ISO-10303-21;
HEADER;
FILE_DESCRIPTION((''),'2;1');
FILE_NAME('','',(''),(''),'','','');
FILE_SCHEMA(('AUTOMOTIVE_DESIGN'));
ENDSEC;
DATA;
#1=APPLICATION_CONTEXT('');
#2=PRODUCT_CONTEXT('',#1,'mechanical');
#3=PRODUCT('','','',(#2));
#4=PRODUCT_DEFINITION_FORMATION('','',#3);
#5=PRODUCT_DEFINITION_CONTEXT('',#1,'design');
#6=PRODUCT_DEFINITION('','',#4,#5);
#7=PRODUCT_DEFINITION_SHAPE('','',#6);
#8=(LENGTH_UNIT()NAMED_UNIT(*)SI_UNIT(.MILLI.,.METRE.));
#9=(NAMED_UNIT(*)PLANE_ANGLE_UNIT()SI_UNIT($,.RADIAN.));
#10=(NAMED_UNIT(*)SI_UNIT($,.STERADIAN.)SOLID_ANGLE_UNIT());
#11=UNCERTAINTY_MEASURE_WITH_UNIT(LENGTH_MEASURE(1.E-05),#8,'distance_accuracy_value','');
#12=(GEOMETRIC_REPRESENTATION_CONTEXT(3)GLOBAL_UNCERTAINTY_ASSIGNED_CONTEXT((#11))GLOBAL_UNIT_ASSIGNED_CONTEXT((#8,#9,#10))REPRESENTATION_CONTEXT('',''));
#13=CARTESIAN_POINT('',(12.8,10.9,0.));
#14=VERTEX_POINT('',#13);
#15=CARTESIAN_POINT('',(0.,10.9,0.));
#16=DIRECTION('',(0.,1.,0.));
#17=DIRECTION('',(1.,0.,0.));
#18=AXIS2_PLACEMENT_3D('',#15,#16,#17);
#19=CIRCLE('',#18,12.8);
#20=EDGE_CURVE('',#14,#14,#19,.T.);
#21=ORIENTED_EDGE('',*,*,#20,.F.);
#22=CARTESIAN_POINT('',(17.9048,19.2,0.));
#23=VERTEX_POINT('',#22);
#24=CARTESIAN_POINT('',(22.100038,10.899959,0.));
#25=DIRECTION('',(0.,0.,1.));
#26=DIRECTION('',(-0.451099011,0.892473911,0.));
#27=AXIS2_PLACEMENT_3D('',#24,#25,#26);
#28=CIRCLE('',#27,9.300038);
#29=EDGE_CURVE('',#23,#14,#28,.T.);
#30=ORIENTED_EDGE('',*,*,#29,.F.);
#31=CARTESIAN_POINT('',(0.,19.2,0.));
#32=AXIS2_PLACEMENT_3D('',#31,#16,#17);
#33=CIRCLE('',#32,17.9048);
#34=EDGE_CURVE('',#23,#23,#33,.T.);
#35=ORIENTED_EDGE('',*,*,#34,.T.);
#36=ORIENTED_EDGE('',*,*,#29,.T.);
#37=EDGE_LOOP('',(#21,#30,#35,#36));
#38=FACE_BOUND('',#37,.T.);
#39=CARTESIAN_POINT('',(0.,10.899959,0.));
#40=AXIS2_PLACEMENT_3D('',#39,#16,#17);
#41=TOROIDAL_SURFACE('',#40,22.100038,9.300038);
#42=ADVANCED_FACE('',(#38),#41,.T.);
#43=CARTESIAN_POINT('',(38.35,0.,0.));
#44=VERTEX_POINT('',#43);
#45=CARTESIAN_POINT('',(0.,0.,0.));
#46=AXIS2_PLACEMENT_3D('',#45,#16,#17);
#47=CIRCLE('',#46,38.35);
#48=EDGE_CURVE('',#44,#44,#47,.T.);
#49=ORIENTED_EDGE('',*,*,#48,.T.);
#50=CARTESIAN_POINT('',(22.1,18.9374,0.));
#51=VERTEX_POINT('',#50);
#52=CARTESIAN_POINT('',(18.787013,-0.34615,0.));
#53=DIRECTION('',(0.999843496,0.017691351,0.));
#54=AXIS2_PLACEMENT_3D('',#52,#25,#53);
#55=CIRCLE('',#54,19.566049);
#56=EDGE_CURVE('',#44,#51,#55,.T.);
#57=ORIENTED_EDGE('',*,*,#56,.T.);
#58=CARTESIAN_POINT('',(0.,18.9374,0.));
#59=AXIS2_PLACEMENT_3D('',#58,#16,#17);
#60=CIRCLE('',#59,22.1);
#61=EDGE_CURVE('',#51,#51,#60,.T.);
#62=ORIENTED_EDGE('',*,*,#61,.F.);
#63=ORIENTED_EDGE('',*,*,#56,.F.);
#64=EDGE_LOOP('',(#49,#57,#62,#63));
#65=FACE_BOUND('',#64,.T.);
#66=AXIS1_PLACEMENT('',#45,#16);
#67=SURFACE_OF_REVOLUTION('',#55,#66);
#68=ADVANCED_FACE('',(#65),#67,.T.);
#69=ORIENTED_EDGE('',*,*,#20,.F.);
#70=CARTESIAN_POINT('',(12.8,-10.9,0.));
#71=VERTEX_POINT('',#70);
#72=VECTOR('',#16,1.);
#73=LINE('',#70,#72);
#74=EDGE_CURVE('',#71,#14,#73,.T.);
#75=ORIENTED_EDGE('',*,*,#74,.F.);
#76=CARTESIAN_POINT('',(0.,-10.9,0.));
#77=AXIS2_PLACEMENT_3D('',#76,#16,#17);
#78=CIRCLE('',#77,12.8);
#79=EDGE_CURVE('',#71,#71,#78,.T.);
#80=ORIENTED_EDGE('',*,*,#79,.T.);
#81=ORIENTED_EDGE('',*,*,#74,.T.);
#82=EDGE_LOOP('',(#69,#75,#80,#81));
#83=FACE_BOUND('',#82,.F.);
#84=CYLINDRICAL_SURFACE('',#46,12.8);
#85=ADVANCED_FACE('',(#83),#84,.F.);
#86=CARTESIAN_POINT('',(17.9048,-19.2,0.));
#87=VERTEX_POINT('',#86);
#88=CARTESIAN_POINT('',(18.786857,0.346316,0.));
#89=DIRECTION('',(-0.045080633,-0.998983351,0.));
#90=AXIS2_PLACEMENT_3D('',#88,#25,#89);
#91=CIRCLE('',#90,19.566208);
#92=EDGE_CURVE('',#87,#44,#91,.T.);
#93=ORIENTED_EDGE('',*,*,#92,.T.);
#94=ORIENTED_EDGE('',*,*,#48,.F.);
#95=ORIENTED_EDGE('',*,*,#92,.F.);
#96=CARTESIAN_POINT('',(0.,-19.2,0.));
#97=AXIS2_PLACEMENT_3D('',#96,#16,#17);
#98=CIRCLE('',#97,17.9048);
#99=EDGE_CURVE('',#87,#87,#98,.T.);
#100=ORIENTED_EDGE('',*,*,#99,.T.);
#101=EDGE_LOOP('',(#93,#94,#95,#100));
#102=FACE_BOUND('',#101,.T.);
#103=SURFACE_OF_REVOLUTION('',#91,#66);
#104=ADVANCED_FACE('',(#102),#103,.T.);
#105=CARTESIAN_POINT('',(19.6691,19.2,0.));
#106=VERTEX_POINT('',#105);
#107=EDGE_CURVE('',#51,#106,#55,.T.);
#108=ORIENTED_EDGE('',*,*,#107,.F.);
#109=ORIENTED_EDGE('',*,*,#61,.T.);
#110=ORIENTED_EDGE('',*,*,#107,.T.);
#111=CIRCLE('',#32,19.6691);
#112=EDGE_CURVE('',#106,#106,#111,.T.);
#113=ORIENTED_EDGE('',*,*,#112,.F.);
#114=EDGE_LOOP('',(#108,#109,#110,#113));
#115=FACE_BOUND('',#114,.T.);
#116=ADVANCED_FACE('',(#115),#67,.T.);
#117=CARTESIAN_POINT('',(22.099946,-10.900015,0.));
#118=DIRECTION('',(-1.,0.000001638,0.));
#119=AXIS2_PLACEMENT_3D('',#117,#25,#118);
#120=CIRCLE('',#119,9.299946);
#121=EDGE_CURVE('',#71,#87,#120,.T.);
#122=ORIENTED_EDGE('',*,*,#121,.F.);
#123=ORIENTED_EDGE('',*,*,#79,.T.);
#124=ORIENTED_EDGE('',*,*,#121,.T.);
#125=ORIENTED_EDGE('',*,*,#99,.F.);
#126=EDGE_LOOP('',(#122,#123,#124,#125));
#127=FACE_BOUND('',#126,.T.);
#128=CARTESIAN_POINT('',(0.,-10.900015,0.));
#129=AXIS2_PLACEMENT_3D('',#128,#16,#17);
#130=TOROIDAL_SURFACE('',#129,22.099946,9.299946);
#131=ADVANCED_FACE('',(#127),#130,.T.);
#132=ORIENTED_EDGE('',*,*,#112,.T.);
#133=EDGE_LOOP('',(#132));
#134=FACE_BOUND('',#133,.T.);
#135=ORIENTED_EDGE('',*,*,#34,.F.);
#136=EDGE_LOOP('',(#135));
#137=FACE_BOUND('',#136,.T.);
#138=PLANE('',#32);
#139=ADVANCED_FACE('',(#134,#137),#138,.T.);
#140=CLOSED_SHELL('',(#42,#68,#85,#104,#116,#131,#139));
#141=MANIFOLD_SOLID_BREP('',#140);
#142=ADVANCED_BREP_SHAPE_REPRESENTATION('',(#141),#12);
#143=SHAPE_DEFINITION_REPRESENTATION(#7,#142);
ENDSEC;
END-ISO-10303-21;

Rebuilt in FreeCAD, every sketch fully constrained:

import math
import FreeCAD as App
import Part
import Sketcher
Q = App.Units.Quantity

doc = App.newDocument("Part")
body = doc.addObject("PartDesign::Body", "Body")

# Sketch on XY plane
sketch1 = body.newObject("Sketcher::SketchObject", "Sketch")
sketch1.AttachmentSupport = (doc.getObject("XY_Plane"), [""])
sketch1.MapMode = "FlatFace"
sketch1.addGeometry([
    Part.LineSegment(App.Vector(12.8, 10.9, 0), App.Vector(12.8, -10.9, 0)),  # 0
    Part.ArcOfCircle(Part.Circle(App.Vector(22.1, -10.9, 0), App.Vector(0, 0, 1), 9.3), math.radians(180), math.radians(243.185877)),  # 1
    Part.ArcOfCircle(Part.Circle(App.Vector(18.7869, 0.3462, 0), App.Vector(0, 0, 1), 19.566094), math.radians(-92.583947), math.radians(-1.013834)),  # 2
    Part.ArcOfCircle(Part.Circle(App.Vector(18.7869, -0.3462, 0), App.Vector(0, 0, 1), 19.566163), math.radians(1.013834), math.radians(87.415761)),  # 3
    Part.LineSegment(App.Vector(19.6691, 19.2, 0), App.Vector(17.9048, 19.2, 0)),  # 4
    Part.ArcOfCircle(Part.Circle(App.Vector(22.1, 10.9, 0), App.Vector(0, 0, 1), 9.299984), math.radians(116.814123), math.radians(180)),  # 5
], False)
sketch1.addConstraint([
    Sketcher.Constraint("Tangent", 0, 2, 1, 1),
    Sketcher.Constraint("Coincident", 1, 2, 2, 1),
    Sketcher.Constraint("Coincident", 2, 2, 3, 1),
    Sketcher.Constraint("Coincident", 3, 2, 4, 1),
    Sketcher.Constraint("Coincident", 4, 2, 5, 1),
    Sketcher.Constraint("Tangent", 5, 2, 0, 1),
    Sketcher.Constraint("Vertical", 0),
    Sketcher.Constraint("Horizontal", 4),
    Sketcher.Constraint("Equal", 2, 3),
    Sketcher.Constraint("Equal", 1, 5),
    Sketcher.Constraint("Symmetric", 2, 3, 3, 3, -1),
    Sketcher.Constraint("Symmetric", 1, 2, 4, 2, -1),
    Sketcher.Constraint("DistanceX", -1, 1, 1, 3, Q("22.1 mm")),
    Sketcher.Constraint("DistanceY", 1, 3, -1, 1, Q("10.9 mm")),
    Sketcher.Constraint("DistanceX", -1, 1, 0, 2, Q("12.8 mm")),
    Sketcher.Constraint("DistanceY", 1, 2, -1, 1, Q("19.2 mm")),
    Sketcher.Constraint("DistanceX", -1, 1, 2, 2, Q("38.35 mm")),
    Sketcher.Constraint("Radius", 2, Q("19.566 mm")),
])
revolution = body.newObject("PartDesign::Revolution", "Revolution")
revolution.Profile = sketch1
revolution.ReferenceAxis = (sketch1, ["V_Axis"])
revolution.Angle = 360

doc.recompute()
